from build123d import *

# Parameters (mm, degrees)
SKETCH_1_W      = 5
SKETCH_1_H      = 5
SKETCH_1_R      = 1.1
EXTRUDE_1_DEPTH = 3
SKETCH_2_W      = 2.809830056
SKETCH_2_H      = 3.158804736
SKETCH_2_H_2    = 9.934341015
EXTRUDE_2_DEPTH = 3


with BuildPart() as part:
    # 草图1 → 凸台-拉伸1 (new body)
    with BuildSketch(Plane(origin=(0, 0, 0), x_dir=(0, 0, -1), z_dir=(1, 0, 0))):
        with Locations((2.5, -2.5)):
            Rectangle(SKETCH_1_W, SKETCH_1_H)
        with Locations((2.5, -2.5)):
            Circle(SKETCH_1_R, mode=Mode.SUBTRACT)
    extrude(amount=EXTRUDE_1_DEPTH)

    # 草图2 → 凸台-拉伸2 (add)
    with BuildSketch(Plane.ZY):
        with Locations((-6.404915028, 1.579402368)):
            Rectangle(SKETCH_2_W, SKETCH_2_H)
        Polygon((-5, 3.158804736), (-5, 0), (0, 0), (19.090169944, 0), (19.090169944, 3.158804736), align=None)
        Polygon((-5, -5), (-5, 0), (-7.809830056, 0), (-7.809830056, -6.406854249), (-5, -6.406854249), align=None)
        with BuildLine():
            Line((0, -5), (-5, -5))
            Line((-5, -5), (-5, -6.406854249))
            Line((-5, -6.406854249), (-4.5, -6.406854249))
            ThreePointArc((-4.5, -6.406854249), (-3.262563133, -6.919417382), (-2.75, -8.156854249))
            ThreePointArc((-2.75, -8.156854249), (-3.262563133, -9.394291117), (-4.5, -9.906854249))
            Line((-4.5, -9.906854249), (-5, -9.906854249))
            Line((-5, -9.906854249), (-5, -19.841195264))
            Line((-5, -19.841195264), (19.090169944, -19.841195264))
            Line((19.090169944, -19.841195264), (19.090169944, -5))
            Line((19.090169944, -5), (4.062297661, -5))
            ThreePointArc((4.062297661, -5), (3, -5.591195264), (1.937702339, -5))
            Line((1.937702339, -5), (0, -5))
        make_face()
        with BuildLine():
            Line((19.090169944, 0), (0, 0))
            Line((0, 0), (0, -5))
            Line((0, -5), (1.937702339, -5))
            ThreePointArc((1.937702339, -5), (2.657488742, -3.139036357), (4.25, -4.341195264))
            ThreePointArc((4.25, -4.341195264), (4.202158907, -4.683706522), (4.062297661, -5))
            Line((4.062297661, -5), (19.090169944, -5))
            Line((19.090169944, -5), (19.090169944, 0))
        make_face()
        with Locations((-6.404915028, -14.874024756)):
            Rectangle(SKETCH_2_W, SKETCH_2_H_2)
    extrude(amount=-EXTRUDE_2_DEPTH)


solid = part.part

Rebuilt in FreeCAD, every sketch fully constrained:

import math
import FreeCAD as App
import Part
import Sketcher

V = App.Vector
Q = App.Units.Quantity


def add_polygon(sketch, points):
    """Adds a closed chain of lines whose ends are joined by coincident constraints."""
    first, n = sketch.GeometryCount, len(points)
    for a, b in zip(points, points[1:] + points[:1]):
        sketch.addGeometry(Part.LineSegment(App.Vector(*a, 0), App.Vector(*b, 0)), False)
    for i in range(n):
        sketch.addConstraint(Sketcher.Constraint("Coincident", first + i, 2, first + (i + 1) % n, 1))

doc = App.newDocument("Part")
params = doc.addObject("Spreadsheet::Sheet", "Params")
for row, (alias, value) in enumerate([
    ("sketch1_diameter", "2.2 mm"),
    ("sketch1_width", "5 mm"),
    ("pad1_length", "3 mm"),
    ("sketch2_width", "23 mm"),
    ("sketch2_width2", "5 mm"),
    ("sketch2_radius", "1.75 mm"),
    ("sketch2_radius2", "1.25 mm"),
    ("sketch2_height", "0.5 mm"),
    ("pad2_length", "3 mm"),
], start=1):
    params.set(f"A{row}", alias)
    params.set(f"B{row}", "=" + value)
    params.setAlias(f"B{row}", alias)

body = doc.addObject("PartDesign::Body", "Body")

# Sketch on YZ plane
sketch1 = body.newObject("Sketcher::SketchObject", "Sketch")
sketch1.AttachmentSupport = (doc.getObject("YZ_Plane"), [""])
sketch1.MapMode = "FlatFace"
add_polygon(sketch1, [(0, 0), (-5, 0), (-5, -5), (0, -5)])  # lines 0-3
sketch1.addGeometry(Part.Circle(V(-2.5, -2.5, 0), V(0, 0, 1), 1.1), False)  # 4
sketch1.addConstraint(Sketcher.Constraint("Horizontal", 0))
sketch1.addConstraint(Sketcher.Constraint("Vertical", 1))
sketch1.addConstraint(Sketcher.Constraint("Horizontal", 2))
sketch1.addConstraint(Sketcher.Constraint("Vertical", 3))
sketch1.addConstraint(Sketcher.Constraint("Coincident", 3, 2, -1, 1))
sketch1.addConstraint(Sketcher.Constraint("Equal", 2, 1))
sketch1.addConstraint(Sketcher.Constraint("Diameter", 4, Q("2.2 mm")))
sketch1.addConstraint(Sketcher.Constraint("DistanceX", 0, 2, 0, 1, Q("5 mm")))
sketch1.addConstraint(Sketcher.Constraint("DistanceX", 4, 3, -1, 1, Q("2.5 mm")))
sketch1.addConstraint(Sketcher.Constraint("DistanceY", 4, 3, -1, 1, Q("2.5 mm")))
sketch1.setExpression("Constraints[10]", "Params.sketch1_diameter")
sketch1.setExpression("Constraints[11]", "Params.sketch1_width")
pad1 = body.newObject("PartDesign::Pad", "Pad")
pad1.Profile = sketch1
pad1.setExpression("Length", "Params.pad1_length")

# Sketch on YZ plane
sketch2 = body.newObject("Sketcher::SketchObject", "Sketch001")
sketch2.AttachmentSupport = (doc.getObject("YZ_Plane"), [""])
sketch2.MapMode = "FlatFace"
sketch2.addGeometry(Part.LineSegment(V(3.2, -7.8, 0), V(-6.4, -7.8, 0)), False)  # 0
sketch2.addGeometry(Part.LineSegment(V(-6.4, -7.8, 0), V(-6.4, -4.5, 0)), False)  # 1
sketch2.addGeometry(Part.ArcOfCircle(Part.Circle(V(-8.2, -4.5, 0), V(0, 0, 1), 1.8), math.radians(0), math.radians(90)), False)  # 2
sketch2.addGeometry(Part.ArcOfCircle(Part.Circle(V(-8.2, -4.5, 0), V(0, 0, 1), 1.7), math.radians(90), math.radians(180)), False)  # 3
sketch2.addGeometry(Part.LineSegment(V(-9.9, -4.5, 0), V(-9.9, -5, 0)), False)  # 4
sketch2.addGeometry(Part.LineSegment(V(-9.9, -5, 0), V(-9.9, -7.8, 0)), False)  # 5
sketch2.addGeometry(Part.LineSegment(V(-9.9, -7.8, 0), V(-19.8, -7.8, 0)), False)  # 6
sketch2.addGeometry(Part.LineSegment(V(-19.8, -7.8, 0), V(-19.8, -5, 0)), False)  # 7
sketch2.addGeometry(Part.LineSegment(V(-19.8, -5, 0), V(-19.8, 19.1, 0)), False)  # 8
sketch2.addGeometry(Part.LineSegment(V(-19.8, 19.1, 0), V(3.2, 19.1, 0)), False)  # 9
sketch2.addGeometry(Part.LineSegment(V(3.2, 19.1, 0), V(3.2, -7.8, 0)), False)  # 10
sketch2.addGeometry(Part.ArcOfCircle(Part.Circle(V(-4.3, 3, 0), V(0, 0, 1), 1.3), math.radians(122), math.radians(238)), False)  # 11
sketch2.addGeometry(Part.ArcOfCircle(Part.Circle(V(-4.3, 3, 0), V(0, 0, 1), 1.2), math.radians(-122), math.radians(90)), False)  # 12
sketch2.addGeometry(Part.ArcOfCircle(Part.Circle(V(-4.3, 3, 0), V(0, 0, 1), 1.3), math.radians(90), math.radians(122)), False)  # 13
add_polygon(sketch2, [(-5, 0), (-5, -5), (0, -5), (0, 0)])  # lines 14-17
sketch2.addConstraint(Sketcher.Constraint("Coincident", 0, 2, 1, 1))
sketch2.addConstraint(Sketcher.Constraint("Tangent", 1, 2, 2, 1))
sketch2.addConstraint(Sketcher.Constraint("Tangent", 2, 2, 3, 1))
sketch2.addConstraint(Sketcher.Constraint("Tangent", 3, 2, 4, 1))
sketch2.addConstraint(Sketcher.Constraint("Coincident", 4, 2, 5, 1))
sketch2.addConstraint(Sketcher.Constraint("Coincident", 5, 2, 6, 1))
sketch2.addConstraint(Sketcher.Constraint("Coincident", 6, 2, 7, 1))
sketch2.addConstraint(Sketcher.Constraint("Coincident", 7, 2, 8, 1))
sketch2.addConstraint(Sketcher.Constraint("Coincident", 8, 2, 9, 1))
sketch2.addConstraint(Sketcher.Constraint("Coincident", 9, 2, 10, 1))
sketch2.addConstraint(Sketcher.Constraint("Coincident", 10, 2, 0, 1))
sketch2.addConstraint(Sketcher.Constraint("Tangent", 11, 2, 12, 1))
sketch2.addConstraint(Sketcher.Constraint("Tangent", 12, 2, 13, 1))
sketch2.addConstraint(Sketcher.Constraint("Tangent", 13, 2, 11, 1))
sketch2.addConstraint(Sketcher.Constraint("Horizontal", 0))
sketch2.addConstraint(Sketcher.Constraint("Vertical", 1))
sketch2.addConstraint(Sketcher.Constraint("Vertical", 4))
sketch2.addConstraint(Sketcher.Constraint("Vertical", 5))
sketch2.addConstraint(Sketcher.Constraint("Horizontal", 6))
sketch2.addConstraint(Sketcher.Constraint("Vertical", 7))
sketch2.addConstraint(Sketcher.Constraint("Vertical", 8))
sketch2.addConstraint(Sketcher.Constraint("Horizontal", 9))
sketch2.addConstraint(Sketcher.Constraint("Vertical", 10))
sketch2.addConstraint(Sketcher.Constraint("Vertical", 14))
sketch2.addConstraint(Sketcher.Constraint("Horizontal", 15))
sketch2.addConstraint(Sketcher.Constraint("Vertical", 16))
sketch2.addConstraint(Sketcher.Constraint("Horizontal", 17))
sketch2.addConstraint(Sketcher.Constraint("Coincident", 16, 2, -1, 1))
sketch2.addConstraint(Sketcher.Constraint("Equal", 2, 3))
sketch2.addConstraint(Sketcher.Constraint("Horizontal", 0, 2, 5, 2))
sketch2.addConstraint(Sketcher.Constraint("Horizontal", 4, 2, 7, 2))
sketch2.addConstraint(Sketcher.Constraint("Horizontal", 7, 2, 14, 2))
sketch2.addConstraint(Sketcher.Constraint("Vertical", 3, 3, 2, 2))
sketch2.addConstraint(Sketcher.Constraint("Vertical", 13, 3, 12, 2))
sketch2.addConstraint(Sketcher.Constraint("Vertical", 11, 2, 13, 2))
sketch2.addConstraint(Sketcher.Constraint("Vertical", 13, 2, 14, 2))
sketch2.addConstraint(Sketcher.Constraint("Equal", 17, 14))
sketch2.addConstraint(Sketcher.Constraint("DistanceX", 9, 1, 9, 2, Q("23 mm")))
sketch2.addConstraint(Sketcher.Constraint("DistanceX", 15, 1, 15, 2, Q("5 mm")))
sketch2.addConstraint(Sketcher.Constraint("Radius", 2, Q("1.75 mm")))
sketch2.addConstraint(Sketcher.Constraint("Radius", 11, Q("1.25 mm")))
sketch2.addConstraint(Sketcher.Constraint("DistanceY", 4, 2, 4, 1, Q("0.5 mm")))
sketch2.addConstraint(Sketcher.Constraint("DistanceY", 10, 2, 10, 1, Q("26.9 mm")))
sketch2.addConstraint(Sketcher.Constraint("DistanceY", -1, 1, 11, 3, Q("3 mm")))
sketch2.addConstraint(Sketcher.Constraint("DistanceX", 8, 2, 12, 3, Q("15.5 mm")))
sketch2.addConstraint(Sketcher.Constraint("DistanceX", 0, 2, 0, 1, Q("9.565659 mm")))
sketch2.addConstraint(Sketcher.Constraint("DistanceY", 1, 1, 1, 2, Q("3.30983 mm")))
sketch2.addConstraint(Sketcher.Constraint("DistanceX", 2, 3, -1, 1, Q("8.156854 mm")))
sketch2.setExpression("Constraints[41]", "Params.sketch2_width")
sketch2.setExpression("Constraints[42]", "Params.sketch2_width2")
sketch2.setExpression("Constraints[43]", "Params.sketch2_radius")
sketch2.setExpression("Constraints[44]", "Params.sketch2_radius2")
sketch2.setExpression("Constraints[45]", "Params.sketch2_height")
pad2 = body.newObject("PartDesign::Pad", "Pad001")
pad2.Profile = sketch2
pad2.setExpression("Length", "Params.pad2_length")

doc.recompute()
